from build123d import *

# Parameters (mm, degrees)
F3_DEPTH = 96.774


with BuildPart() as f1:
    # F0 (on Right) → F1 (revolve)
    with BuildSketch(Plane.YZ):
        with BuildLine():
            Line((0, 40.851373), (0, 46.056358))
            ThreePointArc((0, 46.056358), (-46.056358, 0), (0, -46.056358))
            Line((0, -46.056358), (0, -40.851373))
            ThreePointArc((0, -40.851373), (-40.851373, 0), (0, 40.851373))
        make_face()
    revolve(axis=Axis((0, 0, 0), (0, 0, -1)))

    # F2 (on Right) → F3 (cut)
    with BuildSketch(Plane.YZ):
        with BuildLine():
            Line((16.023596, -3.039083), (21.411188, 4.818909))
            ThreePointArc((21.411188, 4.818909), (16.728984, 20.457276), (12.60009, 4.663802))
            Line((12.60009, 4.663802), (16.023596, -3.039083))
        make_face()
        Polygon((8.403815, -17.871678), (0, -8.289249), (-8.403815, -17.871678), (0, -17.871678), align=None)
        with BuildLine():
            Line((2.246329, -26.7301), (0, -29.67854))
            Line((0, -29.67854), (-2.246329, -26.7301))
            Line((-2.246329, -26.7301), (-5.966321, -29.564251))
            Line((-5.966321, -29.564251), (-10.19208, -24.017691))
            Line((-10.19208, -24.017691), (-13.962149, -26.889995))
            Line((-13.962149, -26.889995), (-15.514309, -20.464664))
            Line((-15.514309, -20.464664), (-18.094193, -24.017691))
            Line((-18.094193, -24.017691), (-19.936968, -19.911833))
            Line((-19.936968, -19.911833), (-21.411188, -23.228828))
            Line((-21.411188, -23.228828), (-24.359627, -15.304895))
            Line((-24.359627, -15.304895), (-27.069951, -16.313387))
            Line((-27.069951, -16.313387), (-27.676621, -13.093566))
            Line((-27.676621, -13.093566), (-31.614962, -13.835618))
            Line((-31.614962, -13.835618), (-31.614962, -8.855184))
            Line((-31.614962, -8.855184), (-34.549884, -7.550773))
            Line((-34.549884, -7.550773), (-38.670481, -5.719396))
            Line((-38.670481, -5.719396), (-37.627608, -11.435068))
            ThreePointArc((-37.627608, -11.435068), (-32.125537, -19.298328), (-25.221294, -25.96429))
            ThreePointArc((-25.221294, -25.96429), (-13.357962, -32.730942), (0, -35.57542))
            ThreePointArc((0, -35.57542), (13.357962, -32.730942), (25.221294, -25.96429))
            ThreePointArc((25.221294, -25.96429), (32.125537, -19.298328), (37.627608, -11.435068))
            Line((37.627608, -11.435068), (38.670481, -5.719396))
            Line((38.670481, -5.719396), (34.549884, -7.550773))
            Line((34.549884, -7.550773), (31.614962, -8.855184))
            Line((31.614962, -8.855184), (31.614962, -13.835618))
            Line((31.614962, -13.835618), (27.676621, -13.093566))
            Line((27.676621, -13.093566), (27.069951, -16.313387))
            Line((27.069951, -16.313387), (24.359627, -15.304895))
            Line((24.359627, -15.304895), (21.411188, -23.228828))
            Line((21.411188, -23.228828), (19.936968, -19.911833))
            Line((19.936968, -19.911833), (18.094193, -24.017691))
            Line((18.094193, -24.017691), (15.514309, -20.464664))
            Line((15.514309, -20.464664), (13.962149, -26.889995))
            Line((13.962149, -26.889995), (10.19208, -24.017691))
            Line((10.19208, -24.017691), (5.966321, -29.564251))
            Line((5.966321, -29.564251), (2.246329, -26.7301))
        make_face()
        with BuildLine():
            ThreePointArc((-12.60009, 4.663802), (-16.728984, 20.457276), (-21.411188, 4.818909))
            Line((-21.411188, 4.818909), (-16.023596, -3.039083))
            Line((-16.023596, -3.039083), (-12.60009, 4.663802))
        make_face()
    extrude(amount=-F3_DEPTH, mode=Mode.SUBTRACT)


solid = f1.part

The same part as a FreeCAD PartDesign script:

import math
import FreeCAD as App
import Part
import Sketcher
Q = App.Units.Quantity

doc = App.newDocument("Part")
body = doc.addObject("PartDesign::Body", "Body")

sketch1 = body.newObject("Sketcher::SketchObject", "Sketch")
sketch1.AttachmentSupport = (doc.getObject("YZ_Plane"), [""])
sketch1.MapMode = "FlatFace"
sketch1.addGeometry([
    Part.LineSegment(App.Vector(0, 41, 0), App.Vector(0, 46, 0)),
    Part.ArcOfCircle(Part.Circle(App.Vector(0, 0, 0), App.Vector(0, 0, 1), 46), math.radians(90), math.radians(270)),
    Part.LineSegment(App.Vector(0, -46, 0), App.Vector(0, -41, 0)),
    Part.ArcOfCircle(Part.Circle(App.Vector(0, 0, 0), App.Vector(0, 0, 1), 41), math.radians(90), math.radians(270)),
], False)
sketch1.addConstraint([
    Sketcher.Constraint("Coincident", 0, 2, 1, 1),
    Sketcher.Constraint("Coincident", 1, 2, 2, 1),
    Sketcher.Constraint("Coincident", 2, 2, 3, 2),
    Sketcher.Constraint("Coincident", 3, 1, 0, 1),
    Sketcher.Constraint("Vertical", 0),
    Sketcher.Constraint("Vertical", 2),
    Sketcher.Constraint("Coincident", 1, 3, -1, 1),
    Sketcher.Constraint("Coincident", 3, 3, -1, 1),
    Sketcher.Constraint("PointOnObject", 0, 2, -2),
    Sketcher.Constraint("PointOnObject", 1, 2, -2),
    Sketcher.Constraint("Radius", 1, 46.056358),
    Sketcher.Constraint("Radius", 3, 40.851373),
])
revolution = body.newObject("PartDesign::Revolution", "Revolution")
revolution.Profile = sketch1
revolution.ReferenceAxis = (sketch1, ["V_Axis"])
revolution.Angle = 360

sketch2 = body.newObject("Sketcher::SketchObject", "Sketch001")
sketch2.AttachmentSupport = (doc.getObject("YZ_Plane"), [""])
sketch2.MapMode = "FlatFace"
sketch2.addGeometry([
    Part.LineSegment(App.Vector(16, -3, 0), App.Vector(21.4, 4.8, 0)),
    Part.ArcOfCircle(Part.Circle(App.Vector(16.9, 12, 0), App.Vector(0, 0, 1), 8.5), math.radians(-58), math.radians(240)),
    Part.LineSegment(App.Vector(12.6, 4.7, 0), App.Vector(16, -3, 0)),
    Part.LineSegment(App.Vector(8.4, -17.9, 0), App.Vector(0, -8.3, 0)),
    Part.LineSegment(App.Vector(0, -8.3, 0), App.Vector(-8.4, -17.9, 0)),
    Part.LineSegment(App.Vector(-8.4, -17.9, 0), App.Vector(8.4, -17.9, 0)),
    Part.LineSegment(App.Vector(2.2, -26.7, 0), App.Vector(0, -29.7, 0)),
    Part.LineSegment(App.Vector(0, -29.7, 0), App.Vector(-2.2, -26.7, 0)),
    Part.LineSegment(App.Vector(-2.2, -26.7, 0), App.Vector(-6, -29.6, 0)),
    Part.LineSegment(App.Vector(-6, -29.6, 0), App.Vector(-10.2, -24, 0)),
    Part.LineSegment(App.Vector(-10.2, -24, 0), App.Vector(-14, -26.9, 0)),
    Part.LineSegment(App.Vector(-14, -26.9, 0), App.Vector(-15.5, -20.5, 0)),
    Part.LineSegment(App.Vector(-15.5, -20.5, 0), App.Vector(-18.1, -24, 0)),
    Part.LineSegment(App.Vector(-18.1, -24, 0), App.Vector(-19.9, -19.9, 0)),
    Part.LineSegment(App.Vector(-19.9, -19.9, 0), App.Vector(-21.4, -23.2, 0)),
    Part.LineSegment(App.Vector(-21.4, -23.2, 0), App.Vector(-24.4, -15.3, 0)),
    Part.LineSegment(App.Vector(-24.4, -15.3, 0), App.Vector(-27.1, -16.3, 0)),
    Part.LineSegment(App.Vector(-27.1, -16.3, 0), App.Vector(-27.7, -13.1, 0)),
    Part.LineSegment(App.Vector(-27.7, -13.1, 0), App.Vector(-31.6, -13.8, 0)),
    Part.LineSegment(App.Vector(-31.6, -13.8, 0), App.Vector(-31.6, -8.9, 0)),
    Part.LineSegment(App.Vector(-31.6, -8.9, 0), App.Vector(-34.5, -7.6, 0)),
    Part.LineSegment(App.Vector(-34.5, -7.6, 0), App.Vector(-38.7, -5.7, 0)),
    Part.LineSegment(App.Vector(-38.7, -5.7, 0), App.Vector(-37.6, -11.4, 0)),
    Part.ArcOfCircle(Part.Circle(App.Vector(5.9, 13.1, 0), App.Vector(0, 0, 1), 50), math.radians(-151), math.radians(-128)),
    Part.ArcOfCircle(Part.Circle(App.Vector(2.5, 8.8, 0), App.Vector(0, 0, 1), 44.4), math.radians(-129), math.radians(-93)),
    Part.ArcOfCircle(Part.Circle(App.Vector(-2.5, 8.8, 0), App.Vector(0, 0, 1), 44.4), math.radians(-87), math.radians(-51)),
    Part.ArcOfCircle(Part.Circle(App.Vector(-5.9, 13.1, 0), App.Vector(0, 0, 1), 50), math.radians(-52), math.radians(-29)),
    Part.LineSegment(App.Vector(37.6, -11.4, 0), App.Vector(38.7, -5.7, 0)),
    Part.LineSegment(App.Vector(38.7, -5.7, 0), App.Vector(34.5, -7.6, 0)),
    Part.LineSegment(App.Vector(34.5, -7.6, 0), App.Vector(31.6, -8.9, 0)),
    Part.LineSegment(App.Vector(31.6, -8.9, 0), App.Vector(31.6, -13.8, 0)),
    Part.LineSegment(App.Vector(31.6, -13.8, 0), App.Vector(27.7, -13.1, 0)),
    Part.LineSegment(App.Vector(27.7, -13.1, 0), App.Vector(27.1, -16.3, 0)),
    Part.LineSegment(App.Vector(27.1, -16.3, 0), App.Vector(24.4, -15.3, 0)),
    Part.LineSegment(App.Vector(24.4, -15.3, 0), App.Vector(21.4, -23.2, 0)),
    Part.LineSegment(App.Vector(21.4, -23.2, 0), App.Vector(19.9, -19.9, 0)),
    Part.LineSegment(App.Vector(19.9, -19.9, 0), App.Vector(18.1, -24, 0)),
    Part.LineSegment(App.Vector(18.1, -24, 0), App.Vector(15.5, -20.5, 0)),
    Part.LineSegment(App.Vector(15.5, -20.5, 0), App.Vector(14, -26.9, 0)),
    Part.LineSegment(App.Vector(14, -26.9, 0), App.Vector(10.2, -24, 0)),
    Part.LineSegment(App.Vector(10.2, -24, 0), App.Vector(6, -29.6, 0)),
    Part.LineSegment(App.Vector(6, -29.6, 0), App.Vector(2.2, -26.7, 0)),
    Part.ArcOfCircle(Part.Circle(App.Vector(-16.9, 12, 0), App.Vector(0, 0, 1), 8.5), math.radians(-60), math.radians(238)),
    Part.LineSegment(App.Vector(-21.4, 4.8, 0), App.Vector(-16, -3, 0)),
    Part.LineSegment(App.Vector(-16, -3, 0), App.Vector(-12.6, 4.7, 0)),
], False)
sketch2.addConstraint([
    Sketcher.Constraint("Coincident", 0, 2, 1, 1),
    Sketcher.Constraint("Coincident", 1, 2, 2, 1),
    Sketcher.Constraint("Coincident", 2, 2, 0, 1),
    Sketcher.Constraint("Coincident", 3, 2, 4, 1),
    Sketcher.Constraint("Coincident", 4, 2, 5, 1),
    Sketcher.Constraint("Coincident", 5, 2, 3, 1),
    Sketcher.Constraint("Coincident", 6, 2, 7, 1),
    Sketcher.Constraint("Coincident", 7, 2, 8, 1),
    Sketcher.Constraint("Coincident", 8, 2, 9, 1),
    Sketcher.Constraint("Coincident", 9, 2, 10, 1),
    Sketcher.Constraint("Coincident", 10, 2, 11, 1),
    Sketcher.Constraint("Coincident", 11, 2, 12, 1),
    Sketcher.Constraint("Coincident", 12, 2, 13, 1),
    Sketcher.Constraint("Coincident", 13, 2, 14, 1),
    Sketcher.Constraint("Coincident", 14, 2, 15, 1),
    Sketcher.Constraint("Coincident", 15, 2, 16, 1),
    Sketcher.Constraint("Coincident", 16, 2, 17, 1),
    Sketcher.Constraint("Coincident", 17, 2, 18, 1),
    Sketcher.Constraint("Coincident", 18, 2, 19, 1),
    Sketcher.Constraint("Coincident", 19, 2, 20, 1),
    Sketcher.Constraint("Coincident", 20, 2, 21, 1),
    Sketcher.Constraint("Coincident", 21, 2, 22, 1),
    Sketcher.Constraint("Coincident", 22, 2, 23, 1),
    Sketcher.Constraint("Coincident", 23, 2, 24, 1),
    Sketcher.Constraint("Coincident", 24, 2, 25, 1),
    Sketcher.Constraint("Coincident", 25, 2, 26, 1),
    Sketcher.Constraint("Coincident", 26, 2, 27, 1),
    Sketcher.Constraint("Coincident", 27, 2, 28, 1),
    Sketcher.Constraint("Coincident", 28, 2, 29, 1),
    Sketcher.Constraint("Coincident", 29, 2, 30, 1),
    Sketcher.Constraint("Coincident", 30, 2, 31, 1),
    Sketcher.Constraint("Coincident", 31, 2, 32, 1),
    Sketcher.Constraint("Coincident", 32, 2, 33, 1),
    Sketcher.Constraint("Coincident", 33, 2, 34, 1),
    Sketcher.Constraint("Coincident", 34, 2, 35, 1),
    Sketcher.Constraint("Coincident", 35, 2, 36, 1),
    Sketcher.Constraint("Coincident", 36, 2, 37, 1),
    Sketcher.Constraint("Coincident", 37, 2, 38, 1),
    Sketcher.Constraint("Coincident", 38, 2, 39, 1),
    Sketcher.Constraint("Coincident", 39, 2, 40, 1),
    Sketcher.Constraint("Coincident", 40, 2, 41, 1),
    Sketcher.Constraint("Coincident", 41, 2, 6, 1),
    Sketcher.Constraint("Coincident", 42, 2, 43, 1),
    Sketcher.Constraint("Coincident", 43, 2, 44, 1),
    Sketcher.Constraint("Coincident", 44, 2, 42, 1),
    Sketcher.Constraint("Horizontal", 5),
    Sketcher.Constraint("Vertical", 19),
    Sketcher.Constraint("Vertical", 30),
    Sketcher.Constraint("Equal", 24, 25),
    Sketcher.Constraint("Equal", 23, 26),
    Sketcher.Constraint("Equal", 1, 42),
    Sketcher.Constraint("Symmetric", 24, 3, 25, 3, -2),
    Sketcher.Constraint("Symmetric", 23, 3, 26, 3, -2),
    Sketcher.Constraint("Symmetric", 1, 3, 42, 3, -2),
    Sketcher.Constraint("Symmetric", 21, 2, 27, 2, -2),
    Sketcher.Constraint("Symmetric", 20, 2, 28, 2, -2),
    Sketcher.Constraint("Symmetric", 19, 2, 29, 2, -2),
    Sketcher.Constraint("Symmetric", 17, 2, 31, 2, -2),
    Sketcher.Constraint("Symmetric", 16, 2, 32, 2, -2),
    Sketcher.Constraint("Symmetric", 15, 2, 33, 2, -2),
    Sketcher.Constraint("Symmetric", 14, 2, 34, 2, -2),
    Sketcher.Constraint("Symmetric", 13, 2, 35, 2, -2),
    Sketcher.Constraint("Symmetric", 12, 2, 36, 2, -2),
    Sketcher.Constraint("Symmetric", 11, 2, 37, 2, -2),
    Sketcher.Constraint("Symmetric", 10, 2, 38, 2, -2),
    Sketcher.Constraint("Symmetric", 9, 2, 39, 2, -2),
    Sketcher.Constraint("Symmetric", 8, 2, 40, 2, -2),
    Sketcher.Constraint("Symmetric", 7, 2, 41, 2, -2),
    Sketcher.Constraint("Symmetric", 2, 2, 43, 2, -2),
    Sketcher.Constraint("PointOnObject", 3, 2, -2),
    Sketcher.Constraint("PointOnObject", 6, 2, -2),
    Sketcher.Constraint("Perpendicular", 7, 8),
    Sketcher.Constraint("Perpendicular", 8, 9),
    Sketcher.Constraint("Perpendicular", 9, 10),
    Sketcher.Constraint("Perpendicular", 15, 16),
    Sketcher.Constraint("Perpendicular", 17, 18),
    Sketcher.Constraint("Perpendicular", 14, 20),
    Sketcher.Constraint("Parallel", 20, 21),
    Sketcher.Constraint("Perpendicular", 2, 28),
    Sketcher.Constraint("Perpendicular", 31, 32),
    Sketcher.Constraint("Perpendicular", 21, 44),
    Sketcher.Constraint("Horizontal", 9, 2, 12, 2),
    Sketcher.Constraint("Horizontal", 22, 2, 26, 2),
    Sketcher.Constraint("Horizontal", 0, 2, 42, 2),
    Sketcher.Constraint("Vertical", 0, 2, 34, 2),
    Sketcher.Constraint("Equal", 3, 4),
    Sketcher.Constraint("Radius", 23, 49.953081),
    Sketcher.Constraint("Radius", 24, 44.439521),
    Sketcher.Constraint("Radius", 1, 8.476764),
    Sketcher.Constraint("DistanceX", 5, 1, 5, 2, 16.80763),
    Sketcher.Constraint("DistanceY", -1, 1, 1, 2, 4.663802),
    Sketcher.Constraint("DistanceY", 7, 2, -1, 1, 26.7301),
    Sketcher.Constraint("DistanceX", 1, 2, 0, 2, 8.811098),
    Sketcher.Constraint("DistanceY", 3, 2, 23, 3, 21.428598),
    Sketcher.Constraint("DistanceY", 10, 2, 15, 2, 11.5851),
    Sketcher.Constraint("DistanceX", 23, 2, 12, 2, 7.127101),
    Sketcher.Constraint("DistanceY", 23, 2, 12, 2, 1.946599),
    Sketcher.Constraint("DistanceY", 29, 2, 2, 2, 5.816101),
    Sketcher.Constraint("Distance", 0, 9.527549),
    Sketcher.Constraint("Distance", 3, 12.745472),
    Sketcher.Constraint("Distance", 11, 6.61015),
    Sketcher.Constraint("Distance", 16, 2.89187),
    Sketcher.Constraint("Distance", 18, 4.007639),
    Sketcher.Constraint("Distance", 21, 4.509242),
    Sketcher.Constraint("DistanceY", 19, 1, 19, 2, 4.980434),
    Sketcher.Constraint("DistanceX", -1, 1, 1, 3, 16.878181),
    Sketcher.Constraint("DistanceY", -1, 1, 23, 3, 13.139349),
    Sketcher.Constraint("DistanceX", -1, 1, 24, 3, 2.466639),
    Sketcher.Constraint("DistanceY", -1, 1, 24, 3, 8.795592),
    Sketcher.Constraint("DistanceY", -1, 1, 0, 2, 4.818909),
    Sketcher.Constraint("DistanceY", 6, 2, -1, 1, 29.67854),
    Sketcher.Constraint("DistanceX", 7, 2, -1, 1, 2.246329),
    Sketcher.Constraint("DistanceX", 8, 2, -1, 1, 5.966321),
    Sketcher.Constraint("DistanceX", 9, 2, -1, 1, 10.19208),
    Sketcher.Constraint("DistanceX", 10, 2, -1, 1, 13.962149),
    Sketcher.Constraint("DistanceX", 11, 2, -1, 1, 15.514309),
    Sketcher.Constraint("DistanceX", 13, 2, -1, 1, 19.936968),
    Sketcher.Constraint("DistanceY", 14, 2, -1, 1, 23.228828),
    Sketcher.Constraint("DistanceX", 16, 2, -1, 1, 27.069951),
    Sketcher.Constraint("DistanceX", 17, 2, -1, 1, 27.676621),
    Sketcher.Constraint("DistanceX", 18, 2, -1, 1, 31.614962),
    Sketcher.Constraint("DistanceX", 21, 2, -1, 1, 38.670481),
    Sketcher.Constraint("DistanceX", 22, 2, -1, 1, 37.627608),
])
pocket1 = body.newObject("PartDesign::Pocket", "Pocket")
pocket1.Profile = sketch2
pocket1.Length = Q("3.81 in")

doc.recompute()
